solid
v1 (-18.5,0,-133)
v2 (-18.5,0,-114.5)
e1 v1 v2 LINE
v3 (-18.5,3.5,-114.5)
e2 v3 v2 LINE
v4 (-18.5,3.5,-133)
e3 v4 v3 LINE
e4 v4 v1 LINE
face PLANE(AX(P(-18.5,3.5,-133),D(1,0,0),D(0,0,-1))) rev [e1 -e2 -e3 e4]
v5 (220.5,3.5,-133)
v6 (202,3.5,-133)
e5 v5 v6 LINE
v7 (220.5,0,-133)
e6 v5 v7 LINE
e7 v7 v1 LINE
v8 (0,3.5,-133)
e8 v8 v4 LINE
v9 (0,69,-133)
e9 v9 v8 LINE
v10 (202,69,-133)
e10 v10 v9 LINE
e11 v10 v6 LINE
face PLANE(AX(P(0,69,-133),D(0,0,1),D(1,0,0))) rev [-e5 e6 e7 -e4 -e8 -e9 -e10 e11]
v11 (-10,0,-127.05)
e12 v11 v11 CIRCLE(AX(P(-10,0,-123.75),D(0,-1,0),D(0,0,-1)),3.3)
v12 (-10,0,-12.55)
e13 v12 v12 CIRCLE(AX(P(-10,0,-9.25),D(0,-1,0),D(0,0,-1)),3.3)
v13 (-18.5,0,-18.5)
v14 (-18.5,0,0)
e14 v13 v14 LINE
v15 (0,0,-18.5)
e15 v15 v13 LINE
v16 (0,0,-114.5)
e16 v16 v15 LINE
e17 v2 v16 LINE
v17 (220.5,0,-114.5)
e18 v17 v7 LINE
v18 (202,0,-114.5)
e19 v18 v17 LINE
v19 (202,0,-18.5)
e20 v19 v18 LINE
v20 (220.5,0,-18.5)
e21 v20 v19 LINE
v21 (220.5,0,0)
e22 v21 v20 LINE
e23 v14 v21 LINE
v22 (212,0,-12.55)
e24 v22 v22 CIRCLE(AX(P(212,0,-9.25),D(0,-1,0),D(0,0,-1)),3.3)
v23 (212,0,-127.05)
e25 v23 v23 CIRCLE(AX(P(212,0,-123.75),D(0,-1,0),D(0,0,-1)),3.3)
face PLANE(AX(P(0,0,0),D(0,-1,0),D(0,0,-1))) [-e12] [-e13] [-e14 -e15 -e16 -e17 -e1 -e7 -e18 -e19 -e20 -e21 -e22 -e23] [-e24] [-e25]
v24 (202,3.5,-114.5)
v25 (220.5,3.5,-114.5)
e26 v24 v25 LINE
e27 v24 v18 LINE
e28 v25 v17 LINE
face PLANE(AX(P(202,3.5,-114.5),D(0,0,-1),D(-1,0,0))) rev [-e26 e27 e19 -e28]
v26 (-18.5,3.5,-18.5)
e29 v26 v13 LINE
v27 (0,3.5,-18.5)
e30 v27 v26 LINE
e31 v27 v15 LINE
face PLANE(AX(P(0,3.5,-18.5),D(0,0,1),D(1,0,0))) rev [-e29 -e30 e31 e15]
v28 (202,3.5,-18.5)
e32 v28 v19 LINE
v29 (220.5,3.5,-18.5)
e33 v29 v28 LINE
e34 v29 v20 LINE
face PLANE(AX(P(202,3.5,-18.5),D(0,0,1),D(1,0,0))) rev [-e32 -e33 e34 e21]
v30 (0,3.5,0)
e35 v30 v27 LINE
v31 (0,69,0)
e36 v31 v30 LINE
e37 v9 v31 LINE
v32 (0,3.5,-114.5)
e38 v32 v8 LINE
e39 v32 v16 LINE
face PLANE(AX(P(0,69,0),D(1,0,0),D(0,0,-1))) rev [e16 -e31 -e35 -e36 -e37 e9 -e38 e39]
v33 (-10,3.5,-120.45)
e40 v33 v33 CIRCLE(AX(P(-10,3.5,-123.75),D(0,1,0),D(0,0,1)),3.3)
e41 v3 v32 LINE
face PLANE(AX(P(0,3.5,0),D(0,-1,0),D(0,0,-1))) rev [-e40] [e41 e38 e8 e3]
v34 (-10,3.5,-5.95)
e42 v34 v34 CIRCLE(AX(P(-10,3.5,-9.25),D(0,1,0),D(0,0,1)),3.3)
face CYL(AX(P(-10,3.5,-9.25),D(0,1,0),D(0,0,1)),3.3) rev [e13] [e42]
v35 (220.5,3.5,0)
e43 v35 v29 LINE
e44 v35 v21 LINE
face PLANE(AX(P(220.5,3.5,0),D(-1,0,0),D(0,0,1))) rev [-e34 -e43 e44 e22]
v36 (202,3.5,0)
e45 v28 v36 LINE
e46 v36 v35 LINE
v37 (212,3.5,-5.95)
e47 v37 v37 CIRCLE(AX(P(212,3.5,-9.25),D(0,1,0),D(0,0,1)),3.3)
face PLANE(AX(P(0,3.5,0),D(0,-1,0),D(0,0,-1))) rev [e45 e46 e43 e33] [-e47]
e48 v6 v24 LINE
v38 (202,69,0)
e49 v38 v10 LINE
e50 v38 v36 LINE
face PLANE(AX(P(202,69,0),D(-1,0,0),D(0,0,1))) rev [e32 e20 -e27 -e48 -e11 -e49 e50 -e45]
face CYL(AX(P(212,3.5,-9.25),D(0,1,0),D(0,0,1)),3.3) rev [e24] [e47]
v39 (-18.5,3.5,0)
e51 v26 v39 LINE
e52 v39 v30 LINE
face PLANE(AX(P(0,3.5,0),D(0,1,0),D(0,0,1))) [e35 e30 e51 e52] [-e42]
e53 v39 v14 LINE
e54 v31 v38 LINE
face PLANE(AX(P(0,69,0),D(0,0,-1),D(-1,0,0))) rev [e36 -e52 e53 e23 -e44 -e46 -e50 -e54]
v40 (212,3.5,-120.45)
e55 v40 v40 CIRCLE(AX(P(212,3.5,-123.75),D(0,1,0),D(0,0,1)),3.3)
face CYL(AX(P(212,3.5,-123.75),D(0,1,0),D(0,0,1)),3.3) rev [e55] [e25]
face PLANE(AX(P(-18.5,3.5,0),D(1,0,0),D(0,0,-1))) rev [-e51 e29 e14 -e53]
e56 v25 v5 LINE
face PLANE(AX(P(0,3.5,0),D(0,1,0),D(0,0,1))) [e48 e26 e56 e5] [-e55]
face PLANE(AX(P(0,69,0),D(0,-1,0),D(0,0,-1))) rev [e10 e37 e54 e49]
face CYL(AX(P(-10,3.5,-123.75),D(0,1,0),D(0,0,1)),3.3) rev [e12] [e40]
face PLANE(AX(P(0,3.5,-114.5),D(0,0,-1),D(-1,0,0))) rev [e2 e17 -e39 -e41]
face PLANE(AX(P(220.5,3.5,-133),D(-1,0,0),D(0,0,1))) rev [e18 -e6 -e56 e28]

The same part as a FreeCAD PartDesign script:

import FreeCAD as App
import Part
import Sketcher

V = App.Vector
Q = App.Units.Quantity

doc = App.newDocument("Part")
body = doc.addObject("PartDesign::Body", "Body")

sketch1 = doc.addObject("Sketcher::SketchObject", "Sketch")
body.addObject(sketch1)
sketch1.AttachmentSupport = (doc.XZ_Plane, [""])
sketch1.MapMode = "FlatFace"
sketch1.addGeometry(Part.LineSegment(V(0, -133, 0), V(0, 0, 0)), False)
sketch1.addGeometry(Part.LineSegment(V(0, 0, 0), V(202, 0, 0)), False)
sketch1.addGeometry(Part.LineSegment(V(202, 0, 0), V(202, -133, 0)), False)
sketch1.addGeometry(Part.LineSegment(V(202, -133, 0), V(0, -133, 0)), False)
sketch1.addConstraint(Sketcher.Constraint("Coincident", 0, 2, 1, 1))
sketch1.addConstraint(Sketcher.Constraint("Coincident", 1, 2, 2, 1))
sketch1.addConstraint(Sketcher.Constraint("Coincident", 2, 2, 3, 1))
sketch1.addConstraint(Sketcher.Constraint("Coincident", 3, 2, 0, 1))
sketch1.addConstraint(Sketcher.Constraint("Vertical", 0))
sketch1.addConstraint(Sketcher.Constraint("Horizontal", 1))
sketch1.addConstraint(Sketcher.Constraint("Vertical", 2))
sketch1.addConstraint(Sketcher.Constraint("Horizontal", 3))
sketch1.addConstraint(Sketcher.Constraint("Coincident", 0, 2, -1, 1))
sketch1.addConstraint(Sketcher.Constraint("DistanceX", 1, 1, 1, 2, Q("202 mm")))
sketch1.addConstraint(Sketcher.Constraint("DistanceY", 0, 1, 0, 2, Q("133 mm")))
pad1 = doc.addObject("PartDesign::Pad", "Pad")
body.addObject(pad1)
pad1.Profile = sketch1
pad1.Length = 69
pad1.Reversed = True

sketch2 = doc.addObject("Sketcher::SketchObject", "Sketch001")
body.addObject(sketch2)
sketch2.AttachmentSupport = (doc.XZ_Plane, [""])
sketch2.MapMode = "FlatFace"
sketch2.addGeometry(Part.LineSegment(V(-18, -133, 0), V(-18, -114, 0)), False)
sketch2.addGeometry(Part.LineSegment(V(-18, -114, 0), V(0, -114, 0)), False)
sketch2.addGeometry(Part.LineSegment(V(0, -114, 0), V(0, -133, 0)), False)
sketch2.addGeometry(Part.LineSegment(V(0, -133, 0), V(-18, -133, 0)), False)
sketch2.addGeometry(Part.LineSegment(V(-18, -18, 0), V(-18, 0, 0)), False)
sketch2.addGeometry(Part.LineSegment(V(-18, 0, 0), V(0, 0, 0)), False)
sketch2.addGeometry(Part.LineSegment(V(0, 0, 0), V(0, -18, 0)), False)
sketch2.addGeometry(Part.LineSegment(V(0, -18, 0), V(-18, -18, 0)), False)
sketch2.addGeometry(Part.LineSegment(V(202, -18, 0), V(202, 0, 0)), False)
sketch2.addGeometry(Part.LineSegment(V(202, 0, 0), V(220, 0, 0)), False)
sketch2.addGeometry(Part.LineSegment(V(220, 0, 0), V(220, -18, 0)), False)
sketch2.addGeometry(Part.LineSegment(V(220, -18, 0), V(202, -18, 0)), False)
sketch2.addGeometry(Part.LineSegment(V(202, -133, 0), V(202, -114, 0)), False)
sketch2.addGeometry(Part.LineSegment(V(202, -114, 0), V(220, -114, 0)), False)
sketch2.addGeometry(Part.LineSegment(V(220, -114, 0), V(220, -133, 0)), False)
sketch2.addGeometry(Part.LineSegment(V(220, -133, 0), V(202, -133, 0)), False)
sketch2.addConstraint(Sketcher.Constraint("Coincident", 0, 2, 1, 1))
sketch2.addConstraint(Sketcher.Constraint("Coincident", 1, 2, 2, 1))
sketch2.addConstraint(Sketcher.Constraint("Coincident", 2, 2, 3, 1))
sketch2.addConstraint(Sketcher.Constraint("Coincident", 3, 2, 0, 1))
sketch2.addConstraint(Sketcher.Constraint("Coincident", 4, 2, 5, 1))
sketch2.addConstraint(Sketcher.Constraint("Coincident", 5, 2, 6, 1))
sketch2.addConstraint(Sketcher.Constraint("Coincident", 6, 2, 7, 1))
sketch2.addConstraint(Sketcher.Constraint("Coincident", 7, 2, 4, 1))
sketch2.addConstraint(Sketcher.Constraint("Coincident", 8, 2, 9, 1))
sketch2.addConstraint(Sketcher.Constraint("Coincident", 9, 2, 10, 1))
sketch2.addConstraint(Sketcher.Constraint("Coincident", 10, 2, 11, 1))
sketch2.addConstraint(Sketcher.Constraint("Coincident", 11, 2, 8, 1))
sketch2.addConstraint(Sketcher.Constraint("Coincident", 12, 2, 13, 1))
sketch2.addConstraint(Sketcher.Constraint("Coincident", 13, 2, 14, 1))
sketch2.addConstraint(Sketcher.Constraint("Coincident", 14, 2, 15, 1))
sketch2.addConstraint(Sketcher.Constraint("Coincident", 15, 2, 12, 1))
sketch2.addConstraint(Sketcher.Constraint("Vertical", 0))
sketch2.addConstraint(Sketcher.Constraint("Horizontal", 1))
sketch2.addConstraint(Sketcher.Constraint("Vertical", 2))
sketch2.addConstraint(Sketcher.Constraint("Horizontal", 3))
sketch2.addConstraint(Sketcher.Constraint("Vertical", 4))
sketch2.addConstraint(Sketcher.Constraint("Horizontal", 5))
sketch2.addConstraint(Sketcher.Constraint("Vertical", 6))
sketch2.addConstraint(Sketcher.Constraint("Horizontal", 7))
sketch2.addConstraint(Sketcher.Constraint("Vertical", 8))
sketch2.addConstraint(Sketcher.Constraint("Horizontal", 9))
sketch2.addConstraint(Sketcher.Constraint("Vertical", 10))
sketch2.addConstraint(Sketcher.Constraint("Horizontal", 11))
sketch2.addConstraint(Sketcher.Constraint("Vertical", 12))
sketch2.addConstraint(Sketcher.Constraint("Horizontal", 13))
sketch2.addConstraint(Sketcher.Constraint("Vertical", 14))
sketch2.addConstraint(Sketcher.Constraint("Horizontal", 15))
sketch2.addConstraint(Sketcher.Constraint("Coincident", 5, 2, -1, 1))
sketch2.addConstraint(Sketcher.Constraint("PointOnObject", 1, 2, -2))
sketch2.addConstraint(Sketcher.Constraint("PointOnObject", 8, 2, -1))
sketch2.addConstraint(Sketcher.Constraint("Horizontal", 7, 2, 10, 2))
sketch2.addConstraint(Sketcher.Constraint("Horizontal", 1, 2, 12, 2))
sketch2.addConstraint(Sketcher.Constraint("Horizontal", 3, 2, 14, 2))
sketch2.addConstraint(Sketcher.Constraint("Vertical", 3, 2, 4, 2))
sketch2.addConstraint(Sketcher.Constraint("Vertical", 11, 2, 12, 2))
sketch2.addConstraint(Sketcher.Constraint("Vertical", 10, 2, 13, 2))
sketch2.addConstraint(Sketcher.Constraint("Equal", 7, 9))
sketch2.addConstraint(Sketcher.Constraint("Equal", 15, 0))
sketch2.addConstraint(Sketcher.Constraint("Equal", 2, 4))
sketch2.addConstraint(Sketcher.Constraint("DistanceX", 1, 1, 1, 2, Q("18.5 mm")))
sketch2.addConstraint(Sketcher.Constraint("DistanceY", 2, 2, -1, 1, Q("133 mm")))
sketch2.addConstraint(Sketcher.Constraint("DistanceX", -1, 1, 8, 2, Q("202 mm")))
pad2 = doc.addObject("PartDesign::Pad", "Pad001")
body.addObject(pad2)
pad2.Profile = sketch2
pad2.Length = 3.5
pad2.Reversed = True

sketch3 = doc.addObject("Sketcher::SketchObject", "Sketch002")
body.addObject(sketch3)
sketch3.AttachmentSupport = (doc.XZ_Plane, [""])
sketch3.MapMode = "FlatFace"
sketch3.AttachmentOffset = App.Placement(V(0, 0, -3.5), App.Rotation())
sketch3.addGeometry(Part.Circle(V(-10, -123.8, 0), V(0, 0, 1), 3.3), False)
sketch3.addGeometry(Part.Circle(V(-10, -9.2, 0), V(0, 0, 1), 3.3), False)
sketch3.addGeometry(Part.Circle(V(212, -9.2, 0), V(0, 0, 1), 3.3), False)
sketch3.addGeometry(Part.Circle(V(212, -123.8, 0), V(0, 0, 1), 3.3), False)
sketch3.addConstraint(Sketcher.Constraint("Equal", 0, 1))
sketch3.addConstraint(Sketcher.Constraint("Equal", 1, 2))
sketch3.addConstraint(Sketcher.Constraint("Equal", 2, 3))
sketch3.addConstraint(Sketcher.Constraint("Horizontal", 1, 3, 2, 3))
sketch3.addConstraint(Sketcher.Constraint("Horizontal", 0, 3, 3, 3))
sketch3.addConstraint(Sketcher.Constraint("Vertical", 0, 3, 1, 3))
sketch3.addConstraint(Sketcher.Constraint("Vertical", 2, 3, 3, 3))
sketch3.addConstraint(Sketcher.Constraint("Diameter", 0, Q("6.6 mm")))
sketch3.addConstraint(Sketcher.Constraint("DistanceX", 0, 3, -1, 1, Q("10 mm")))
sketch3.addConstraint(Sketcher.Constraint("DistanceX", -1, 1, 2, 3, Q("212 mm")))
sketch3.addConstraint(Sketcher.Constraint("DistanceY", 0, 3, 1, 3, Q("114.5 mm")))
sketch3.addConstraint(Sketcher.Constraint("DistanceY", 0, 3, -1, 1, Q("123.75 mm")))
doc.recompute()
hole = doc.addObject("PartDesign::Hole", "Hole")
body.addObject(hole)
hole.Profile = sketch3
hole.ThreadType = "None"
hole.Diameter = 6.6
hole.DepthType = "ThroughAll"
hole.Reversed = True

doc.recompute()
